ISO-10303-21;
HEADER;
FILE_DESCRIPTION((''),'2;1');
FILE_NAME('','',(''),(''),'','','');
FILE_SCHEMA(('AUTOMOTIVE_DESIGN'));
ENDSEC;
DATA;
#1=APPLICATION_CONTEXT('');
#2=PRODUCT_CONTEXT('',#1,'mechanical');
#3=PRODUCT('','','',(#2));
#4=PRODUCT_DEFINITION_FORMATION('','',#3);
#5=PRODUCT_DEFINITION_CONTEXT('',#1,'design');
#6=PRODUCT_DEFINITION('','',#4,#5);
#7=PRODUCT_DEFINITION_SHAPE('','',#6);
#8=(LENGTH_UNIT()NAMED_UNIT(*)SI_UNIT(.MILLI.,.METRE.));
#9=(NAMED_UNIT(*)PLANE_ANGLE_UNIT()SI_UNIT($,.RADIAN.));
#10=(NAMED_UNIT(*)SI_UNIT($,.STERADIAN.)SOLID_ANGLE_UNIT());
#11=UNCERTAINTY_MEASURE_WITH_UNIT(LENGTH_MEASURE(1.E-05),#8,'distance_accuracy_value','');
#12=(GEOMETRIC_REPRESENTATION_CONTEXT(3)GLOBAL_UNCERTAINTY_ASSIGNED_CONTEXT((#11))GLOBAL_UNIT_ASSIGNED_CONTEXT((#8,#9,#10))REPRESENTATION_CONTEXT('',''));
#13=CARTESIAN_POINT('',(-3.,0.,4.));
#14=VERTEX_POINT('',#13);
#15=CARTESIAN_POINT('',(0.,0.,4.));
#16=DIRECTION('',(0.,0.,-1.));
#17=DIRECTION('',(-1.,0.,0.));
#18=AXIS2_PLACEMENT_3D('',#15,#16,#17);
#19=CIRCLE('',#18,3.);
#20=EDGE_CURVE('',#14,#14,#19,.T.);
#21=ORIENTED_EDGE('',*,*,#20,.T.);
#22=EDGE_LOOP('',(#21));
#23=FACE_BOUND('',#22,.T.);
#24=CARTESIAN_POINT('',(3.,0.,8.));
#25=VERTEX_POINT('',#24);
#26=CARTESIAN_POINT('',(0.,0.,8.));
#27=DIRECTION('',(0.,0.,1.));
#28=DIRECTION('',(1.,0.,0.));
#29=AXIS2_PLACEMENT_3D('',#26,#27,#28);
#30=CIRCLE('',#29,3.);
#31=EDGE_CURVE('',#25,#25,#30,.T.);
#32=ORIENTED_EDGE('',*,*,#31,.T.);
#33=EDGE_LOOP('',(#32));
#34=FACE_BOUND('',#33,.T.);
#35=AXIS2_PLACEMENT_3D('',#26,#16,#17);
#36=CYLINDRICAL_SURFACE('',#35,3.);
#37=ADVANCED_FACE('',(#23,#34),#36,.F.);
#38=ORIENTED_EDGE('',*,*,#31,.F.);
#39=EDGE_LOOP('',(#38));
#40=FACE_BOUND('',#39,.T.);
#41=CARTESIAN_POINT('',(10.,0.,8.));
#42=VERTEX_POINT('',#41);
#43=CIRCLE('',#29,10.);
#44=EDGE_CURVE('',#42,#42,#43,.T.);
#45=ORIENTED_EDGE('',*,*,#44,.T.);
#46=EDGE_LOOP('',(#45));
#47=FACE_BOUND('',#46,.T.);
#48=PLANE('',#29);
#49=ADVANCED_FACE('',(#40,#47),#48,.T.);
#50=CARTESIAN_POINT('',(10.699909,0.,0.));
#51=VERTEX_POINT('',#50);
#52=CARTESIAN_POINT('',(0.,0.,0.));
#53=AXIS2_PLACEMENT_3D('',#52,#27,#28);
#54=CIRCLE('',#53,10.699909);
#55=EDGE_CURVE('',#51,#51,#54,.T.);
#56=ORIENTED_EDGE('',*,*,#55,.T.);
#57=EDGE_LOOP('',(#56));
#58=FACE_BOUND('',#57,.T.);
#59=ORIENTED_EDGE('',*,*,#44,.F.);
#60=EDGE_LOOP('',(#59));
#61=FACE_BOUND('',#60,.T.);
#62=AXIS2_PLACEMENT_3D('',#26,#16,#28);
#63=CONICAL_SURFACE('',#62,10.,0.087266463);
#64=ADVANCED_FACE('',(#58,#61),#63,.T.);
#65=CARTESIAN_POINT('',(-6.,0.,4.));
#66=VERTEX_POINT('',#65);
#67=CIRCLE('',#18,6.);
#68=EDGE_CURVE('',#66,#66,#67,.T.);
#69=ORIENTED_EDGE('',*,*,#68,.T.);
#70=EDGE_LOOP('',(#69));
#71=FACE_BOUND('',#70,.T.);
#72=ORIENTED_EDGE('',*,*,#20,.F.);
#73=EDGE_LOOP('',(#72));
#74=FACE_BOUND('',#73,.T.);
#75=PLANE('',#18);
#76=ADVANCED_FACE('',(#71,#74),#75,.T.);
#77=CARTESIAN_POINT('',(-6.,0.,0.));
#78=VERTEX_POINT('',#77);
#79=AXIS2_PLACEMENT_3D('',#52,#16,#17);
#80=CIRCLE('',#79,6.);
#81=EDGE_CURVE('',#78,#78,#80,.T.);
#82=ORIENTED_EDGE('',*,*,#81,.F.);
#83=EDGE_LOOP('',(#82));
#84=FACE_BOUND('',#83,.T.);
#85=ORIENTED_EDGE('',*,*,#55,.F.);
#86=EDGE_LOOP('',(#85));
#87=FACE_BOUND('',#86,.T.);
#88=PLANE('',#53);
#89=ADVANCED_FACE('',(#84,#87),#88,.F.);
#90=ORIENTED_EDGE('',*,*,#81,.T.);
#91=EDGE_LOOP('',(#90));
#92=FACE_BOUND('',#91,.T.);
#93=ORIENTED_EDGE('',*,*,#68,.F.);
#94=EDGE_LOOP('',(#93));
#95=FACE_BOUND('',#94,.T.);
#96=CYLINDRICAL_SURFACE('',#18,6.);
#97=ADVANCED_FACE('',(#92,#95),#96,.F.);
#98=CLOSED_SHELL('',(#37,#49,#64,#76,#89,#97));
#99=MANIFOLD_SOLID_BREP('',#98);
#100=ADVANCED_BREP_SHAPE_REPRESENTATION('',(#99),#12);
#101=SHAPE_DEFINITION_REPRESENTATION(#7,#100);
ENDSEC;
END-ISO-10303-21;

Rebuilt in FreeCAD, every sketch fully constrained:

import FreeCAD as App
import Part
import Sketcher
from FreeCAD import Vector


def faces_at(feature, points):
    """Names of the faces that lie closest to the given points."""
    faces = feature.Shape.Faces
    near = lambda p: min(range(len(faces)), key=lambda i: faces[i].distToShape(Part.Vertex(*p))[0])
    return sorted({f"Face{near(p) + 1}" for p in points})

doc = App.newDocument("Part")
body = doc.addObject("PartDesign::Body", "Body")

# Sketch on XY plane
sketch1 = body.newObject("Sketcher::SketchObject", "Sketch")
sketch1.AttachmentSupport = (doc.getObject("XY_Plane"), [""])
sketch1.MapMode = "FlatFace"
sketch1.addGeometry([
    Part.Circle(Vector(0, 0, 0), Vector(0, 0, 1), 10),
    Part.Circle(Vector(0, 0, 0), Vector(0, 0, 1), 3),
], False)
sketch1.addConstraint([
    Sketcher.Constraint("Coincident", 0, 3, -1, 1),
    Sketcher.Constraint("Coincident", 1, 3, -1, 1),
    Sketcher.Constraint("Diameter", 0, 20.0),
    Sketcher.Constraint("Diameter", 1, 6.0),
])
pad1 = body.newObject("PartDesign::Pad", "Pad")
pad1.Profile = sketch1
pad1.Length = 8
doc.recompute()

datumplane = body.newObject("PartDesign::Plane", "DatumPlane")
datumplane.AttachmentSupport = (doc.getObject("XY_Plane"), [""])
datumplane.MapMode = "FlatFace"
datumplane.AttachmentOffset = App.Placement(Vector(0, 0, 8), App.Rotation())
draft = body.newObject("PartDesign::Draft", "Draft")
draft.Base = (pad1, faces_at(pad1, [(-10, 0, 4)]))
draft.NeutralPlane = (datumplane, [""])
draft.Angle = 5
draft.Reversed = False

# Sketch on XY plane
sketch2 = body.newObject("Sketcher::SketchObject", "Sketch001")
sketch2.AttachmentSupport = (doc.getObject("XY_Plane"), [""])
sketch2.MapMode = "FlatFace"
sketch2.addGeometry(Part.Circle(Vector(0, 0, 0), Vector(0, 0, 1), 6), False)
sketch2.addConstraint([
    Sketcher.Constraint("Coincident", 0, 3, -1, 1),
    Sketcher.Constraint("Diameter", 0, 12.0),
])
pocket1 = body.newObject("PartDesign::Pocket", "Pocket")
pocket1.Profile = sketch2
pocket1.Length = 4
pocket1.Reversed = True

doc.recompute()
